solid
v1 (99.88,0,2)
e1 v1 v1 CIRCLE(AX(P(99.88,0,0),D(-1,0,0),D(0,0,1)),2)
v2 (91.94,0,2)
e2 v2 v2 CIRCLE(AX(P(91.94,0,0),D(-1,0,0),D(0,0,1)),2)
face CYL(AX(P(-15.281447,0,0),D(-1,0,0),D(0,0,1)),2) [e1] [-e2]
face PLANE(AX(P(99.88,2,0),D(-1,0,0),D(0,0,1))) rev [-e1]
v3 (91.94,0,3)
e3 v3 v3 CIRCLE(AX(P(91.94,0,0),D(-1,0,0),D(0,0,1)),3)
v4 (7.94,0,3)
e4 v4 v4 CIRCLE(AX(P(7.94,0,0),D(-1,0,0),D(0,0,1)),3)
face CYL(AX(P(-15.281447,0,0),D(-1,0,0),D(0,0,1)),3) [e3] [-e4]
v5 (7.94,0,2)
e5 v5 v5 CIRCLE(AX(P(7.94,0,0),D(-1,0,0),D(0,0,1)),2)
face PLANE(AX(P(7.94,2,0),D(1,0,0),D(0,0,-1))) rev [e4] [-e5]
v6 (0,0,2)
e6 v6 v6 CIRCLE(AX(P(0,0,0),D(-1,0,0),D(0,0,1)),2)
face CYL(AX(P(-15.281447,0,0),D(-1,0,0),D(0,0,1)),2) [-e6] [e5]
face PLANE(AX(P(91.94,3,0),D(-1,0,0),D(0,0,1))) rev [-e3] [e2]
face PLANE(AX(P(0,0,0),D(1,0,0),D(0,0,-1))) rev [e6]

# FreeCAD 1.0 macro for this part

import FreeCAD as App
import Part
import Sketcher
from FreeCAD import Vector
Q = App.Units.Quantity


def add_polygon(sketch, points):
    """Adds a closed chain of lines whose ends are joined by coincident constraints."""
    first, n = sketch.GeometryCount, len(points)
    for a, b in zip(points, points[1:] + points[:1]):
        sketch.addGeometry(Part.LineSegment(App.Vector(*a, 0), App.Vector(*b, 0)), False)
    for i in range(n):
        sketch.addConstraint(Sketcher.Constraint("Coincident", first + i, 2, first + (i + 1) % n, 1))

doc = App.newDocument("Part")
params = doc.addObject("Spreadsheet::Sheet", "Params")
for row, (alias, value) in enumerate([
    ("sketch1_width", "84 mm"),
    ("sketch1_height", "2 mm"),
    ("sketch1_height2", "1 mm"),
    ("sketch1_width2", "99.88 mm"),
    ("revolution_angle", "360 deg"),
], start=1):
    params.set(f"A{row}", alias)
    params.set(f"B{row}", "=" + value)
    params.setAlias(f"B{row}", alias)

body = doc.addObject("PartDesign::Body", "Body")

# Sketch on XY plane
sketch1 = doc.addObject("Sketcher::SketchObject", "Sketch")
body.addObject(sketch1)
sketch1.AttachmentSupport = (doc.XY_Plane, [""])
sketch1.MapMode = "FlatFace"
add_polygon(sketch1, [(0, 2), (0, 0), (99.9, 0), (99.9, 2), (91.9, 2), (91.9, 3), (7.9, 3), (7.9, 2)])  # lines 0-7
sketch1.addConstraint([
    Sketcher.Constraint("Vertical", 0),
    Sketcher.Constraint("Horizontal", 1),
    Sketcher.Constraint("Vertical", 2),
    Sketcher.Constraint("Horizontal", 3),
    Sketcher.Constraint("Vertical", 4),
    Sketcher.Constraint("Horizontal", 5),
    Sketcher.Constraint("Vertical", 6),
    Sketcher.Constraint("Horizontal", 7),
    Sketcher.Constraint("Coincident", 0, 2, -1, 1),
    Sketcher.Constraint("Horizontal", 3, 2, 6, 2),
    Sketcher.Constraint("Equal", 3, 7),
    Sketcher.Constraint("DistanceX", 5, 2, 5, 1, Q("84 mm")),
    Sketcher.Constraint("DistanceY", 0, 2, 0, 1, Q("2 mm")),
    Sketcher.Constraint("DistanceY", 4, 1, 4, 2, Q("1 mm")),
    Sketcher.Constraint("DistanceX", 1, 1, 1, 2, Q("99.88 mm")),
])
sketch1.setExpression("Constraints[19]", "Params.sketch1_width")
sketch1.setExpression("Constraints[20]", "Params.sketch1_height")
sketch1.setExpression("Constraints[21]", "Params.sketch1_height2")
sketch1.setExpression("Constraints[22]", "Params.sketch1_width2")
revolution = doc.addObject("PartDesign::Revolution", "Revolution")
body.addObject(revolution)
revolution.Profile = sketch1
revolution.ReferenceAxis = (sketch1, ["H_Axis"])
revolution.setExpression("Angle", "Params.revolution_angle")

doc.recompute()
